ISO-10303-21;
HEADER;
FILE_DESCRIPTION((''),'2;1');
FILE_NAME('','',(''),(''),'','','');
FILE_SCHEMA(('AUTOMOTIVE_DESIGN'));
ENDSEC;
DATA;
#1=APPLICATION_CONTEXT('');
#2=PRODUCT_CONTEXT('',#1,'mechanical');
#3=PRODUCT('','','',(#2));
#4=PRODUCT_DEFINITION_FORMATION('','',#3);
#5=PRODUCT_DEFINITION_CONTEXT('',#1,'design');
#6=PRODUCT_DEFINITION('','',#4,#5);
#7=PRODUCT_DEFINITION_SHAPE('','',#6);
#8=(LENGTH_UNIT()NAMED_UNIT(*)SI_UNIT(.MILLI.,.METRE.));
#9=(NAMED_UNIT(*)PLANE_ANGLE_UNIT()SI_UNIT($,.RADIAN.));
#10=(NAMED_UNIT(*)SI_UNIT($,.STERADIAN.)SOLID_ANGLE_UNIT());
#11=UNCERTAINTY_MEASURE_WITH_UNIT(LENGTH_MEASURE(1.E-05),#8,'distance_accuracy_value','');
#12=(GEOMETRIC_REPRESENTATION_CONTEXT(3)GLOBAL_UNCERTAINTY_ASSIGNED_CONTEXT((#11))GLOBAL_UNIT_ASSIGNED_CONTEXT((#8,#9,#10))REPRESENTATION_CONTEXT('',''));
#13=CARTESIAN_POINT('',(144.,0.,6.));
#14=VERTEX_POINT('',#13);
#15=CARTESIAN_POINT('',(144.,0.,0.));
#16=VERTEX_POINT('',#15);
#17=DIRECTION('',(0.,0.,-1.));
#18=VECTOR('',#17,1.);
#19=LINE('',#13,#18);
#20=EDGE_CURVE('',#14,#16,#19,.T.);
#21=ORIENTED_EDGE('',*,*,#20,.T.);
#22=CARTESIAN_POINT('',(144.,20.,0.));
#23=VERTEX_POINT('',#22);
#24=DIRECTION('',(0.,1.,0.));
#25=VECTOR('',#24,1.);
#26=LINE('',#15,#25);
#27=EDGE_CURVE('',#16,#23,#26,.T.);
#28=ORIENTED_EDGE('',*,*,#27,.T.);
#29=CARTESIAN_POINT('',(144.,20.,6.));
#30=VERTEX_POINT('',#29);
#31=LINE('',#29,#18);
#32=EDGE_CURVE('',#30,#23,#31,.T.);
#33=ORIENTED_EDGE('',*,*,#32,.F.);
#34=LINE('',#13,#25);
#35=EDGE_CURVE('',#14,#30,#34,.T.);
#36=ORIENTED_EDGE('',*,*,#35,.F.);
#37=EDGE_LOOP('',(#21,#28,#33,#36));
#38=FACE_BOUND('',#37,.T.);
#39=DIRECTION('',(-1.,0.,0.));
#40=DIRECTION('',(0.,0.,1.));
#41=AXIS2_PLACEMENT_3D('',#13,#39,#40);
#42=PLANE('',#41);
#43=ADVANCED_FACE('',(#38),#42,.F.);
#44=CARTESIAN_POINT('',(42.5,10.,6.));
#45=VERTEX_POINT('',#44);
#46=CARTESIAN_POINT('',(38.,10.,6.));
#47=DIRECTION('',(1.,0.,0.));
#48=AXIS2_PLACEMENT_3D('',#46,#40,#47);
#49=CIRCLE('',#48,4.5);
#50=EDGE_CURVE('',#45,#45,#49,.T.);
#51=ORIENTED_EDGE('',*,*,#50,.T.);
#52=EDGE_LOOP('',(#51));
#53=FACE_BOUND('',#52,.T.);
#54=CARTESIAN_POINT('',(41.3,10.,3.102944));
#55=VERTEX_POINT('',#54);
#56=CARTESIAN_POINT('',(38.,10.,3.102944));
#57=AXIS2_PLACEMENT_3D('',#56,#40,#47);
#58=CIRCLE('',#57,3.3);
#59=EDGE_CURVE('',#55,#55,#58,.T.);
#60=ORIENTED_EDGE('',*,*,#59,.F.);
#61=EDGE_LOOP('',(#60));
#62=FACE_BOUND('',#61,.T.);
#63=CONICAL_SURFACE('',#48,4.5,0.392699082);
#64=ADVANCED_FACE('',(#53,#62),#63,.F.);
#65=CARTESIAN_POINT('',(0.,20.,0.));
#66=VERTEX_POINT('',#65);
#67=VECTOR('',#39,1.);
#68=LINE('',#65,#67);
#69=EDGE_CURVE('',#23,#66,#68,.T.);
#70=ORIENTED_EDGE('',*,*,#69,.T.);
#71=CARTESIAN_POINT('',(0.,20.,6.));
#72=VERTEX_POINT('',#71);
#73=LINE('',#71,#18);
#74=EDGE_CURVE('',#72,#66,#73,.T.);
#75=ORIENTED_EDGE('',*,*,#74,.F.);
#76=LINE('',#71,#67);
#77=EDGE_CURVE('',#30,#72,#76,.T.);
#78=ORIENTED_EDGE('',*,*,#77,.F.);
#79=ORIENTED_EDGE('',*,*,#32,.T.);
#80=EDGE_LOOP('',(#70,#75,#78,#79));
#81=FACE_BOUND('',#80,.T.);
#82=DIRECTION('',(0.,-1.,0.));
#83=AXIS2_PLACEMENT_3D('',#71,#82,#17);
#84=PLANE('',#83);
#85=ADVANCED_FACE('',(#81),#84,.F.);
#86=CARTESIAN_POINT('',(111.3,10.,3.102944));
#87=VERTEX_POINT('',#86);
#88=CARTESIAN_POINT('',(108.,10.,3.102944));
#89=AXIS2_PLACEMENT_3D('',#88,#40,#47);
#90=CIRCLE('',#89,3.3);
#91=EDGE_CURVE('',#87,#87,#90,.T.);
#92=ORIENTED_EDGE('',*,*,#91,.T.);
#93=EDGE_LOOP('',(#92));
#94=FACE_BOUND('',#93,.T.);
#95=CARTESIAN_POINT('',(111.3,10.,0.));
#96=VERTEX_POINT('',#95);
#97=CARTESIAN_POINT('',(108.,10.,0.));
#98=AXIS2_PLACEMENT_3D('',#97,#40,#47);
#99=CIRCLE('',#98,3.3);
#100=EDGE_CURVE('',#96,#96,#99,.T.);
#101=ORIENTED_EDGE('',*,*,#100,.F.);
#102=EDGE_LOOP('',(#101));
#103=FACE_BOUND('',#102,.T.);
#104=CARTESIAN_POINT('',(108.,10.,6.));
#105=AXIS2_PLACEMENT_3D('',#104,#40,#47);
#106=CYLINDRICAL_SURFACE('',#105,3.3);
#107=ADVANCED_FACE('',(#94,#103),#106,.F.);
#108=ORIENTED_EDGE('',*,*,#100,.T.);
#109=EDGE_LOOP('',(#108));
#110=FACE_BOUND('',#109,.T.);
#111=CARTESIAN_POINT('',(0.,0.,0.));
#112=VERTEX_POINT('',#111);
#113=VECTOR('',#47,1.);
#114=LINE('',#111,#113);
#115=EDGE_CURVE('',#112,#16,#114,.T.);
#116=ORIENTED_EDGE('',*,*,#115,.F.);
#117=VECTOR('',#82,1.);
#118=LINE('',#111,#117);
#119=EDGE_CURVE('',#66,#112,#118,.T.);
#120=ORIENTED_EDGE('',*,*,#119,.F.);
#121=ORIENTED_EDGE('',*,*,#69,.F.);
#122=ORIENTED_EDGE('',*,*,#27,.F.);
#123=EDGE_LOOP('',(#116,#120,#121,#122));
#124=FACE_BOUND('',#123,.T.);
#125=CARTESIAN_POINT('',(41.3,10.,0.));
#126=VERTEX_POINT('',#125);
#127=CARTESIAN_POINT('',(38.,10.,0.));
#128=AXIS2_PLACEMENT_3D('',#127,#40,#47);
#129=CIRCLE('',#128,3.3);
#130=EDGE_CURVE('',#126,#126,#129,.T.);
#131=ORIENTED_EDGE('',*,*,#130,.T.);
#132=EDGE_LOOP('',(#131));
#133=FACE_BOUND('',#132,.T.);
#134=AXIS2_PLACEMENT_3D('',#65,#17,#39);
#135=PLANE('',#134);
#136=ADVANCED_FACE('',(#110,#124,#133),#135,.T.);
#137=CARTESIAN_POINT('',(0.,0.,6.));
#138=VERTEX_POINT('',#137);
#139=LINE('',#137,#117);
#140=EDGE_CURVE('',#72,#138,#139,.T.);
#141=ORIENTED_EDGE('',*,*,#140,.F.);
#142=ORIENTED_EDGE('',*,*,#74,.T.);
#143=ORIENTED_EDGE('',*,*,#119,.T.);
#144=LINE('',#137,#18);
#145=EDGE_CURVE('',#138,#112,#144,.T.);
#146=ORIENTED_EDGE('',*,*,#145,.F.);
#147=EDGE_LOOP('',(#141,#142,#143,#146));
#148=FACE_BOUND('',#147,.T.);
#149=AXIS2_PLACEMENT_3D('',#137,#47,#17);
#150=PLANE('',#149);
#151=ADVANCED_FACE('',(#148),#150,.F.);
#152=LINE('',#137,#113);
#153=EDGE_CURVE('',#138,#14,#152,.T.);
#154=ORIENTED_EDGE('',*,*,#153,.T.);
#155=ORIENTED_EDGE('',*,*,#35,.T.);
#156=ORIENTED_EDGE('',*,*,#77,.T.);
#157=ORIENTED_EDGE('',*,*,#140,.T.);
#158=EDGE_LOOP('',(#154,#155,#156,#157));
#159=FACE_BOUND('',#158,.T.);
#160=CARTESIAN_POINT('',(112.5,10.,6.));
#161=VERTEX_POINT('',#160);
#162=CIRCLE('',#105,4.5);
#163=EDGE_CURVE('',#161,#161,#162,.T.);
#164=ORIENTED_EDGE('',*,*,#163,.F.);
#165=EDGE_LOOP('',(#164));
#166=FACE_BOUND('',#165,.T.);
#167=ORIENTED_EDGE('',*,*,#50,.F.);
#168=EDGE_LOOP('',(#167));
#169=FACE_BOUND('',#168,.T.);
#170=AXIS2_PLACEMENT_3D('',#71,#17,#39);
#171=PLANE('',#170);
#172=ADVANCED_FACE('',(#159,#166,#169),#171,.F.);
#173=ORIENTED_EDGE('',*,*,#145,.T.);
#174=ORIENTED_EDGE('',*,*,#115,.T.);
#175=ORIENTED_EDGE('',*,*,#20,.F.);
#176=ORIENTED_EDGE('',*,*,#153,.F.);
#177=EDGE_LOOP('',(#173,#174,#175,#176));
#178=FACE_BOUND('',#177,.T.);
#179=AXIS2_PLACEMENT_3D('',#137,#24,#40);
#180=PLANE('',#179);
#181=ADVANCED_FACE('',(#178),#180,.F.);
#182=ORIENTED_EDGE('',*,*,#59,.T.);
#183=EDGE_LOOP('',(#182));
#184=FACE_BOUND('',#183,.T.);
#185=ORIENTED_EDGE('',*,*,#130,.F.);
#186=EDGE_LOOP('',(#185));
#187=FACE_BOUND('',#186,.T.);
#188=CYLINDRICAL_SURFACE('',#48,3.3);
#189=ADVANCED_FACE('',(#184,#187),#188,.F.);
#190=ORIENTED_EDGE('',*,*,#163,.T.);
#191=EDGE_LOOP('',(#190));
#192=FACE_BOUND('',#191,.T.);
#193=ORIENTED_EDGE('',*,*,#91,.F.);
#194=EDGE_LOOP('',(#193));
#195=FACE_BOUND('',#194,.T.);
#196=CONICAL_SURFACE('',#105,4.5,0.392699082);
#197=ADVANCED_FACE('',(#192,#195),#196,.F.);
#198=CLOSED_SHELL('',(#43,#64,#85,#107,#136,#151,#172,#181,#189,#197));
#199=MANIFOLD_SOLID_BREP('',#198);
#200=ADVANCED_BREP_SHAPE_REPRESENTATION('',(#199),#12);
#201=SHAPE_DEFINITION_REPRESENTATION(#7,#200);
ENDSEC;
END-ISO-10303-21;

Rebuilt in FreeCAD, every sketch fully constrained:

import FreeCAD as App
import Part
import Sketcher

V = App.Vector
Q = App.Units.Quantity


def add_polygon(sketch, points):
    """Adds a closed chain of lines whose ends are joined by coincident constraints."""
    first, n = sketch.GeometryCount, len(points)
    for a, b in zip(points, points[1:] + points[:1]):
        sketch.addGeometry(Part.LineSegment(App.Vector(*a, 0), App.Vector(*b, 0)), False)
    for i in range(n):
        sketch.addConstraint(Sketcher.Constraint("Coincident", first + i, 2, first + (i + 1) % n, 1))

doc = App.newDocument("Part")
body = doc.addObject("PartDesign::Body", "Body")

# Sketch on XY plane
sketch1 = doc.addObject("Sketcher::SketchObject", "Sketch")
body.addObject(sketch1)
sketch1.AttachmentSupport = (doc.XY_Plane, [""])
sketch1.MapMode = "FlatFace"
add_polygon(sketch1, [(0, 20), (0, 0), (144, 0), (144, 20)])  # lines 0-3
sketch1.addConstraint([
    Sketcher.Constraint("Vertical", 0),
    Sketcher.Constraint("Horizontal", 1),
    Sketcher.Constraint("Vertical", 2),
    Sketcher.Constraint("Horizontal", 3),
    Sketcher.Constraint("Coincident", 0, 2, -1, 1),
    Sketcher.Constraint("DistanceX", 1, 1, 1, 2, Q("144 mm")),
    Sketcher.Constraint("DistanceY", 0, 2, 0, 1, Q("20 mm")),
])
pad1 = doc.addObject("PartDesign::Pad", "Pad")
body.addObject(pad1)
pad1.Profile = sketch1
pad1.Length = 6

# Sketch on YZ plane
sketch2 = doc.addObject("Sketcher::SketchObject", "Sketch001")
body.addObject(sketch2)
sketch2.AttachmentSupport = (doc.YZ_Plane, [""])
sketch2.MapMode = "FlatFace"
sketch2.AttachmentOffset = App.Placement(V(0, 0, 38), App.Rotation())
add_polygon(sketch2, [(10, 0), (10, 6), (5.5, 6), (6.7, 3.102944), (6.7, 0)])  # lines 0-4
sketch2.addGeometry(Part.LineSegment(V(10, 6, 0), V(10, 0, 0)), True)  # axis
sketch2.addConstraint([
    Sketcher.Constraint("Vertical", 0),
    Sketcher.Constraint("Horizontal", 1),
    Sketcher.Constraint("Vertical", 3),
    Sketcher.Constraint("Horizontal", 4),
    Sketcher.Constraint("Vertical", 5),
    Sketcher.Constraint("Coincident", 5, 1, 0, 2),
    Sketcher.Constraint("PointOnObject", 3, 2, -1),
    Sketcher.Constraint("PointOnObject", 5, 2, -1),
    Sketcher.Constraint("DistanceY", 0, 1, 0, 2, Q("6 mm")),
    Sketcher.Constraint("DistanceX", 1, 2, 1, 1, Q("4.5 mm")),
    Sketcher.Constraint("DistanceX", 4, 1, 4, 2, Q("3.3 mm")),
    Sketcher.Constraint("DistanceX", -1, 1, 0, 2, Q("10 mm")),
    Sketcher.Constraint("Angle", 2, Q("-67.5 deg")),
])
groove = doc.addObject("PartDesign::Groove", "Groove")
body.addObject(groove)
groove.Profile = sketch2
groove.ReferenceAxis = (sketch2, ["Axis0"])
groove.Angle = 360
doc.recompute()

linearpattern = doc.addObject("PartDesign::LinearPattern", "LinearPattern")
body.addObject(linearpattern)
linearpattern.Originals = [groove]
linearpattern.Direction = (doc.X_Axis, [""])
linearpattern.Mode = "offset"
linearpattern.Offset = 70
linearpattern.Occurrences = 2
body.Tip = linearpattern

doc.recompute()
